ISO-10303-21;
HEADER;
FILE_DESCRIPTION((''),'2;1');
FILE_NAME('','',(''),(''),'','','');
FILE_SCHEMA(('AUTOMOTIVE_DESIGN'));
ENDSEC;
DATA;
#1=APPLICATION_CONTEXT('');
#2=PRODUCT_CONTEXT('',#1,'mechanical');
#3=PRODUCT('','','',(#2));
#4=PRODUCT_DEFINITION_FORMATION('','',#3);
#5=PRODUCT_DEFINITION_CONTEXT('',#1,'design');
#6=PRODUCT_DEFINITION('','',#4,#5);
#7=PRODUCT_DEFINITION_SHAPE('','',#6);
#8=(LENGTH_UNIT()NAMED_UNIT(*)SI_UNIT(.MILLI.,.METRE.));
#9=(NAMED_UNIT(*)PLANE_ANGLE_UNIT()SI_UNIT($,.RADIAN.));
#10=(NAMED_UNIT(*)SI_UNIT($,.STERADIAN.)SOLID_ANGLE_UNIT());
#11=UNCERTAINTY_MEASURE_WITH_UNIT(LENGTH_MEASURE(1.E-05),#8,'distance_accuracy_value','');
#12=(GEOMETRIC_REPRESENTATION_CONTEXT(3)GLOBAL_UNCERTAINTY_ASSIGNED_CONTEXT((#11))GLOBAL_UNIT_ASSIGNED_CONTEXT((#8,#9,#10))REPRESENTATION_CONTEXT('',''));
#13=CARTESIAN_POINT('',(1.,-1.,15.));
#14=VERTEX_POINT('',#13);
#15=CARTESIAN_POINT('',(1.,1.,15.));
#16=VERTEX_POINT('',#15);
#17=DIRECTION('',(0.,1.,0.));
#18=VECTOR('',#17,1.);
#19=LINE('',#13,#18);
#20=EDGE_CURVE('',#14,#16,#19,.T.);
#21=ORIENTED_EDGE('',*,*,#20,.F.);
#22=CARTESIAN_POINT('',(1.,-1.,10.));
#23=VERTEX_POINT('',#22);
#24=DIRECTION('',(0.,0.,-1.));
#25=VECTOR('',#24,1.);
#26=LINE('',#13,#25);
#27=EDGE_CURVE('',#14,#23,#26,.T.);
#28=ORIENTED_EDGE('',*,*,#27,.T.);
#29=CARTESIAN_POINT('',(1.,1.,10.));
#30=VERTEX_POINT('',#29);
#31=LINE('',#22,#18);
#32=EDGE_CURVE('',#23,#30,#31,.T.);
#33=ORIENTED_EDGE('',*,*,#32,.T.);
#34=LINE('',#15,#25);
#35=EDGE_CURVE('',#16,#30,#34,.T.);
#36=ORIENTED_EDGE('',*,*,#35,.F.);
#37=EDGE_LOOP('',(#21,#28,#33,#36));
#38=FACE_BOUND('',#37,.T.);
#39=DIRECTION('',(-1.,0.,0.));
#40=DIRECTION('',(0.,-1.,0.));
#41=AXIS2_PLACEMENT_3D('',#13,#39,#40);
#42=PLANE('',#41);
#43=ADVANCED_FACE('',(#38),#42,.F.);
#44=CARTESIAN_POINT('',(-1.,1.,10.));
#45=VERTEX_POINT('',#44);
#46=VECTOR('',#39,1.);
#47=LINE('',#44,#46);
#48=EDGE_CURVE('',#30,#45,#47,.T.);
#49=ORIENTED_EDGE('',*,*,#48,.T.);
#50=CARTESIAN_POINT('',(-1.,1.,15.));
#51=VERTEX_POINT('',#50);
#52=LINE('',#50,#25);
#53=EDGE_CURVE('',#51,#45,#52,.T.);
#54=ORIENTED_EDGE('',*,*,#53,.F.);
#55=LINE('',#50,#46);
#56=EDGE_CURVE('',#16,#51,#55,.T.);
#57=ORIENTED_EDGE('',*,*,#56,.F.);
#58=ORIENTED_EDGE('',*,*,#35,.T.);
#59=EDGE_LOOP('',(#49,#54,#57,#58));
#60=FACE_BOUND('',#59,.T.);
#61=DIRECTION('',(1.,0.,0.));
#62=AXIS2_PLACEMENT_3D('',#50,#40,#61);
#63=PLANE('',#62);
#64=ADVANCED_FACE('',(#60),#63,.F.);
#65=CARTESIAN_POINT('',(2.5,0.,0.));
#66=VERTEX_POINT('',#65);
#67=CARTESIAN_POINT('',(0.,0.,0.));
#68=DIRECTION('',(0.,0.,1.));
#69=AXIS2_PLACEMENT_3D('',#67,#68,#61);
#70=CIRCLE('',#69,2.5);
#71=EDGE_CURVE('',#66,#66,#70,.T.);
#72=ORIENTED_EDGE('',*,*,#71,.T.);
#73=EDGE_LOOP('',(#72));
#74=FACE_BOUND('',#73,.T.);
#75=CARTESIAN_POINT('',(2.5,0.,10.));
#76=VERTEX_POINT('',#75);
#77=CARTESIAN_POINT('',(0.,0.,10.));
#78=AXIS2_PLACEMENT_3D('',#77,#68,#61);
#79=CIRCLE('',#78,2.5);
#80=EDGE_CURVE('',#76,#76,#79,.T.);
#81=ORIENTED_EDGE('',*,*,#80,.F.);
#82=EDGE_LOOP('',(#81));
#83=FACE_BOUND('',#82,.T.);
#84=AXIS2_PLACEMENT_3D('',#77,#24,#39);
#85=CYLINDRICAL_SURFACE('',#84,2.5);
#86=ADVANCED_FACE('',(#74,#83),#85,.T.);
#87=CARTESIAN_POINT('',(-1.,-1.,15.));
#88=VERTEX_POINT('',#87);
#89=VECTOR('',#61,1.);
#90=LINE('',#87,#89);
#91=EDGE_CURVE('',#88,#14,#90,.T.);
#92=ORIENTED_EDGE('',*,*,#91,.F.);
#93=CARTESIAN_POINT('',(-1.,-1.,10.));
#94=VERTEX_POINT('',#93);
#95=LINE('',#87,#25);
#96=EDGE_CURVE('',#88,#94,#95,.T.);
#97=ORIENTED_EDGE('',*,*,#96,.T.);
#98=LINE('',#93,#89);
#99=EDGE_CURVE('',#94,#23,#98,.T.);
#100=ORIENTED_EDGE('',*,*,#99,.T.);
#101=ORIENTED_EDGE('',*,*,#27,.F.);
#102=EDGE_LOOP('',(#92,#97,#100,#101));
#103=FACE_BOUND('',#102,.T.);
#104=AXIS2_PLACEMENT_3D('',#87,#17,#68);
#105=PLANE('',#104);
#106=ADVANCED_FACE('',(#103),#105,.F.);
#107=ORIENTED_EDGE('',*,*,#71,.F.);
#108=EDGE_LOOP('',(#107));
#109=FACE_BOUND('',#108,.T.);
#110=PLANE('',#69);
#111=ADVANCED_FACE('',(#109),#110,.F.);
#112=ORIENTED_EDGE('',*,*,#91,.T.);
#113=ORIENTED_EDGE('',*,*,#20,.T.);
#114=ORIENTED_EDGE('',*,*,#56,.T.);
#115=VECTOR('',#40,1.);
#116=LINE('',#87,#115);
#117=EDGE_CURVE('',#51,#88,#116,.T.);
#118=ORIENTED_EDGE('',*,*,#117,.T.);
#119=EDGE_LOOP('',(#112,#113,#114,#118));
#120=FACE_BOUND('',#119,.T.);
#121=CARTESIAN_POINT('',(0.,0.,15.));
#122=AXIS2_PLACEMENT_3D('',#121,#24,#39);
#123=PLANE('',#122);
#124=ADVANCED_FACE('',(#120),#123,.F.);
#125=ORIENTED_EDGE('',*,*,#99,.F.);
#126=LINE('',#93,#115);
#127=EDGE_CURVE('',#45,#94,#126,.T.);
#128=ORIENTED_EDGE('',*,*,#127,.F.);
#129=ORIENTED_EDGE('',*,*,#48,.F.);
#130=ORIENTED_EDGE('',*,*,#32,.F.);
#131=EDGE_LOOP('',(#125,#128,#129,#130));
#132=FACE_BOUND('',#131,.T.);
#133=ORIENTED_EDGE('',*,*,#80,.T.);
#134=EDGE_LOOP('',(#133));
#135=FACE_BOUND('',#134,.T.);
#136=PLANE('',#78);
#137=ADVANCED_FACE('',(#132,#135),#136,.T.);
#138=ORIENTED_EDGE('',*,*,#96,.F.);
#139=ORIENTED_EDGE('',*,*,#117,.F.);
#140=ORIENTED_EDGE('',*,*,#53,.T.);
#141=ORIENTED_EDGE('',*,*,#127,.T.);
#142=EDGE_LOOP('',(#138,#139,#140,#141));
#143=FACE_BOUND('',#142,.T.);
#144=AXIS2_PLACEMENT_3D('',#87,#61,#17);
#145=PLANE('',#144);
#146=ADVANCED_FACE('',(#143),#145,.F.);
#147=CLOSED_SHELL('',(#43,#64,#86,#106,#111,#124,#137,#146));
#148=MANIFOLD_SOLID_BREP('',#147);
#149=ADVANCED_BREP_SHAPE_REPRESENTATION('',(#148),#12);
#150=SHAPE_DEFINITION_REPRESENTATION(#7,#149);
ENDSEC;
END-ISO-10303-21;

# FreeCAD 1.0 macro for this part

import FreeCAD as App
import Part
import Sketcher
from FreeCAD import Vector
Q = App.Units.Quantity


def add_polygon(sketch, points):
    """Adds a closed chain of lines whose ends are joined by coincident constraints."""
    first, n = sketch.GeometryCount, len(points)
    for a, b in zip(points, points[1:] + points[:1]):
        sketch.addGeometry(Part.LineSegment(App.Vector(*a, 0), App.Vector(*b, 0)), False)
    for i in range(n):
        sketch.addConstraint(Sketcher.Constraint("Coincident", first + i, 2, first + (i + 1) % n, 1))

doc = App.newDocument("Part")
body = doc.addObject("PartDesign::Body", "Body")

sketch1 = doc.addObject("Sketcher::SketchObject", "Sketch")
body.addObject(sketch1)
sketch1.AttachmentSupport = (doc.XY_Plane, [""])
sketch1.MapMode = "FlatFace"
sketch1.addGeometry(Part.Circle(Vector(0, 0, 0), Vector(0, 0, 1), 2.5), False)
sketch1.addConstraint([
    Sketcher.Constraint("Coincident", 0, 3, -1, 1),
    Sketcher.Constraint("Diameter", 0, Q("5 mm")),
])
pad1 = doc.addObject("PartDesign::Pad", "Pad")
body.addObject(pad1)
pad1.Profile = sketch1
pad1.Length = 10

sketch2 = doc.addObject("Sketcher::SketchObject", "Sketch001")
body.addObject(sketch2)
sketch2.AttachmentSupport = (doc.XY_Plane, [""])
sketch2.MapMode = "FlatFace"
sketch2.AttachmentOffset = App.Placement(Vector(0, 0, 10), App.Rotation())
add_polygon(sketch2, [(-1, 1), (-1, -1), (1, -1), (1, 1)])
sketch2.addConstraint([
    Sketcher.Constraint("Vertical", 0),
    Sketcher.Constraint("Horizontal", 1),
    Sketcher.Constraint("Vertical", 2),
    Sketcher.Constraint("Horizontal", 3),
    Sketcher.Constraint("Symmetric", 0, 2, 2, 2, -1, 1),
    Sketcher.Constraint("Equal", 3, 0),
    Sketcher.Constraint("DistanceX", 1, 1, 1, 2, Q("2 mm")),
])
pad2 = doc.addObject("PartDesign::Pad", "Pad001")
body.addObject(pad2)
pad2.Profile = sketch2
pad2.Length = 5

doc.recompute()
